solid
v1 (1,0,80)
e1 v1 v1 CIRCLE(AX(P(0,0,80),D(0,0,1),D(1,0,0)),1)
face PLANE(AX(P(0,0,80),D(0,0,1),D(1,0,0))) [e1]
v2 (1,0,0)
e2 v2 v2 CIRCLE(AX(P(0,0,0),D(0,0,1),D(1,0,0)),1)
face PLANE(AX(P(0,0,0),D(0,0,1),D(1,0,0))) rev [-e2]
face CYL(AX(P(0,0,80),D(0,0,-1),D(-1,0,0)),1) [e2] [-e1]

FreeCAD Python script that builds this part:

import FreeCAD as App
import Part
import Sketcher

doc = App.newDocument("Part")
body = doc.addObject("PartDesign::Body", "Body")

# Sketch on XY plane
sketch1 = doc.addObject("Sketcher::SketchObject", "Sketch")
body.addObject(sketch1)
sketch1.AttachmentSupport = (doc.XY_Plane, [""])
sketch1.MapMode = "FlatFace"
sketch1.addGeometry(Part.Circle(App.Vector(0, 0, 0), App.Vector(0, 0, 1), 1), False)
sketch1.addConstraint([
    Sketcher.Constraint("Coincident", 0, 3, -1, 1),
    Sketcher.Constraint("Diameter", 0, 2.0),
])
pad1 = doc.addObject("PartDesign::Pad", "Pad")
body.addObject(pad1)
pad1.Profile = sketch1
pad1.Length = 80

doc.recompute()
